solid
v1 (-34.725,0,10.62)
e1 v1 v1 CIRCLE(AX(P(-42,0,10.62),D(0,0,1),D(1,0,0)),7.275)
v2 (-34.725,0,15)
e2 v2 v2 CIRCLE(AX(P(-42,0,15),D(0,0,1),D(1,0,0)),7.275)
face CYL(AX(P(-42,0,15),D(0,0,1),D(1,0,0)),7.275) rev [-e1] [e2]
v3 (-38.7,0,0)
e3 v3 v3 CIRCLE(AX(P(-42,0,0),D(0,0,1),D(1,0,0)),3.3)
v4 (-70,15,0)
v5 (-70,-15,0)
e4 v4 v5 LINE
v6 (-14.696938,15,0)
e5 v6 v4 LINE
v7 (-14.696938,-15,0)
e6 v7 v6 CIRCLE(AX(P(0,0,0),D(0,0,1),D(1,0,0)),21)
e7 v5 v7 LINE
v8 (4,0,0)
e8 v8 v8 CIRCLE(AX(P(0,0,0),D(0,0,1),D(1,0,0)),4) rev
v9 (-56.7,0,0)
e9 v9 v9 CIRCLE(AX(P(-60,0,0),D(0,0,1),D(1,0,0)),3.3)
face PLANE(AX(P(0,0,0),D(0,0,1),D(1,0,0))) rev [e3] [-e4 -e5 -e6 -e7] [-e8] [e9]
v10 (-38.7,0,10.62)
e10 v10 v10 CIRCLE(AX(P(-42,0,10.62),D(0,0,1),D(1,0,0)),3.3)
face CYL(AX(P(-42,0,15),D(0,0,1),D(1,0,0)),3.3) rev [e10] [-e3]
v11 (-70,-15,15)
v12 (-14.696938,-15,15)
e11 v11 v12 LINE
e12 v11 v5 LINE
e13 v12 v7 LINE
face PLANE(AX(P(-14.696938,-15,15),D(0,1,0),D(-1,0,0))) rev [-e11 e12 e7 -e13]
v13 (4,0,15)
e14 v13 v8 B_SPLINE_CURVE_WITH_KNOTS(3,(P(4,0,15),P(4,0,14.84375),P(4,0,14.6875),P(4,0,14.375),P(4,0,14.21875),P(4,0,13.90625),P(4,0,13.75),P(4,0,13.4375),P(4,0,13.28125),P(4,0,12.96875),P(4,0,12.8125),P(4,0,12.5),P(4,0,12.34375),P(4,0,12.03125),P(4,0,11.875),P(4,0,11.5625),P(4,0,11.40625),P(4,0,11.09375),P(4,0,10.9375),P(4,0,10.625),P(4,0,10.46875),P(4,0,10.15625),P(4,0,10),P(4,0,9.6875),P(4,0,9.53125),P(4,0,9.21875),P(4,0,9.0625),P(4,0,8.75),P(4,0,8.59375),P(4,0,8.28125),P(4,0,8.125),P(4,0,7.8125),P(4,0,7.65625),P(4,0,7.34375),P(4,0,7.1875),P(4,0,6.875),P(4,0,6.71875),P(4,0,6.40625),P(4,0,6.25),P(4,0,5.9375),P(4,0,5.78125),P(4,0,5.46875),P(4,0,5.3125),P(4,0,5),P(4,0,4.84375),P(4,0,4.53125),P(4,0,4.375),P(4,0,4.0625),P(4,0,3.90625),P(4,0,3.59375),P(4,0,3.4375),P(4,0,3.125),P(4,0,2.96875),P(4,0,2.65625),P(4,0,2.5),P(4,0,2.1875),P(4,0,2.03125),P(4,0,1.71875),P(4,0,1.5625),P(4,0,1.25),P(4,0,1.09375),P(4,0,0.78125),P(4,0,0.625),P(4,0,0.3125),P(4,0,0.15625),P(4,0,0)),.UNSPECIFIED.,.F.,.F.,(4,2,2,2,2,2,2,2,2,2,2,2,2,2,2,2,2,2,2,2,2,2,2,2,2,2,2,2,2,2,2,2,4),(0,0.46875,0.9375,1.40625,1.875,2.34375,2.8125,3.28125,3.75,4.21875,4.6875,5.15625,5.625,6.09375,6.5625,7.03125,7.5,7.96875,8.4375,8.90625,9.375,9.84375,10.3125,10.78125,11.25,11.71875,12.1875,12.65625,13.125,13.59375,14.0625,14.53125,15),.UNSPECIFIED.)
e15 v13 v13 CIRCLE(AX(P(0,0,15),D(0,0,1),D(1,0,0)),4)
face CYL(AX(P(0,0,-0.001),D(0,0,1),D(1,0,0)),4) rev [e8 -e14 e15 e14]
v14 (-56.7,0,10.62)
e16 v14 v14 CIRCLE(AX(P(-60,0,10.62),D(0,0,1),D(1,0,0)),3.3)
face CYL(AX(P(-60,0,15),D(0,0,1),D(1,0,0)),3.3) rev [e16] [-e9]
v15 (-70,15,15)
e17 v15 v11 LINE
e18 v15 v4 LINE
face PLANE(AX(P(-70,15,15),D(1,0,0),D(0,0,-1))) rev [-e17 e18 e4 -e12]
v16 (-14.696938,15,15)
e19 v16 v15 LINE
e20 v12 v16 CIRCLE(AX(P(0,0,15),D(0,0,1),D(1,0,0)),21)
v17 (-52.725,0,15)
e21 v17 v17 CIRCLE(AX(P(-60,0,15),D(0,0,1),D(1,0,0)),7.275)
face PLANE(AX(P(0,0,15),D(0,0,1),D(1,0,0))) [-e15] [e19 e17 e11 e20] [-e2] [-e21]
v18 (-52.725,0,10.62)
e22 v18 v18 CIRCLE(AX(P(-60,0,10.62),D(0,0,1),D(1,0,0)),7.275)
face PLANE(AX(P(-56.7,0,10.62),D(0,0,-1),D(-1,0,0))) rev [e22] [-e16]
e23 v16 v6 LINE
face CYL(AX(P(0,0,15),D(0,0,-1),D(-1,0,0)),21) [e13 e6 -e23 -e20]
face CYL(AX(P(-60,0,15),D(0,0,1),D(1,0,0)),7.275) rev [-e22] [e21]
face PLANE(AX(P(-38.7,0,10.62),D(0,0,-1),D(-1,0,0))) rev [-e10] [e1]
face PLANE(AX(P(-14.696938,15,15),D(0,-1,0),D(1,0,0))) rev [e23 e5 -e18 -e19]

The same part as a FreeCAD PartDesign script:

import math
import FreeCAD as App
import Part
import Sketcher

doc = App.newDocument("Part")
body = doc.addObject("PartDesign::Body", "Body")

sketch1 = body.newObject("Sketcher::SketchObject", "Sketch")
sketch1.AttachmentSupport = (doc.getObject("XY_Plane"), [""])
sketch1.MapMode = "FlatFace"
sketch1.addGeometry(Part.LineSegment(App.Vector(-15, 15, 0), App.Vector(-70, 15, 0)), False)
sketch1.addGeometry(Part.LineSegment(App.Vector(-70, 15, 0), App.Vector(-70, -15, 0)), False)
sketch1.addGeometry(Part.LineSegment(App.Vector(-70, -15, 0), App.Vector(-15, -15, 0)), False)
sketch1.addGeometry(Part.ArcOfCircle(Part.Circle(App.Vector(0, 0, 0), App.Vector(0, 0, 1), 21), math.radians(-134), math.radians(134)), False)
sketch1.addConstraint(Sketcher.Constraint("Coincident", 0, 2, 1, 1))
sketch1.addConstraint(Sketcher.Constraint("Coincident", 1, 2, 2, 1))
sketch1.addConstraint(Sketcher.Constraint("Coincident", 2, 2, 3, 1))
sketch1.addConstraint(Sketcher.Constraint("Coincident", 3, 2, 0, 1))
sketch1.addConstraint(Sketcher.Constraint("Horizontal", 0))
sketch1.addConstraint(Sketcher.Constraint("Vertical", 1))
sketch1.addConstraint(Sketcher.Constraint("Horizontal", 2))
sketch1.addConstraint(Sketcher.Constraint("Coincident", 3, 3, -1, 1))
sketch1.addConstraint(Sketcher.Constraint("Vertical", 2, 2, 3, 2))
sketch1.addConstraint(Sketcher.Constraint("Radius", 3, 21.0))
sketch1.addConstraint(Sketcher.Constraint("DistanceY", 1, 2, 1, 1, 30.0))
sketch1.addConstraint(Sketcher.Constraint("DistanceX", 0, 2, -1, 1, 70.0))
pad1 = body.newObject("PartDesign::Pad", "Pad")
pad1.Profile = sketch1
pad1.Length = 15

sketch2 = body.newObject("Sketcher::SketchObject", "Sketch001")
sketch2.AttachmentSupport = (doc.getObject("XY_Plane"), [""])
sketch2.MapMode = "FlatFace"
sketch2.AttachmentOffset = App.Placement(App.Vector(0, 0, 15), App.Rotation())
sketch2.addGeometry(Part.Circle(App.Vector(-60, 0, 0), App.Vector(0, 0, 1), 3.3), False)
sketch2.addGeometry(Part.Circle(App.Vector(-42, 0, 0), App.Vector(0, 0, 1), 3.3), False)
sketch2.addConstraint(Sketcher.Constraint("Equal", 0, 1))
sketch2.addConstraint(Sketcher.Constraint("PointOnObject", 0, 3, -1))
sketch2.addConstraint(Sketcher.Constraint("PointOnObject", 1, 3, -1))
sketch2.addConstraint(Sketcher.Constraint("Diameter", 0, 6.6))
sketch2.addConstraint(Sketcher.Constraint("DistanceX", 0, 3, -1, 1, 60.0))
sketch2.addConstraint(Sketcher.Constraint("DistanceX", 1, 3, -1, 1, 42.0))
doc.recompute()
hole = body.newObject("PartDesign::Hole", "Hole")
hole.Profile = sketch2
hole.ThreadType = "None"
hole.Diameter = 6.6
hole.DepthType = "ThroughAll"
hole.HoleCutType = "Counterbore"
hole.HoleCutDiameter = 14.55
hole.HoleCutDepth = 4.38

sketch3 = body.newObject("Sketcher::SketchObject", "Sketch002")
sketch3.AttachmentSupport = (doc.getObject("XY_Plane"), [""])
sketch3.MapMode = "FlatFace"
sketch3.AttachmentOffset = App.Placement(App.Vector(0, 0, 15), App.Rotation())
sketch3.addGeometry(Part.Circle(App.Vector(0, 0, 0), App.Vector(0, 0, 1), 4), False)
sketch3.addConstraint(Sketcher.Constraint("Coincident", 0, 3, -1, 1))
sketch3.addConstraint(Sketcher.Constraint("Diameter", 0, 8.0))
pocket1 = body.newObject("PartDesign::Pocket", "Pocket")
pocket1.Profile = sketch3
pocket1.Type = "UpToFirst"

doc.recompute()
